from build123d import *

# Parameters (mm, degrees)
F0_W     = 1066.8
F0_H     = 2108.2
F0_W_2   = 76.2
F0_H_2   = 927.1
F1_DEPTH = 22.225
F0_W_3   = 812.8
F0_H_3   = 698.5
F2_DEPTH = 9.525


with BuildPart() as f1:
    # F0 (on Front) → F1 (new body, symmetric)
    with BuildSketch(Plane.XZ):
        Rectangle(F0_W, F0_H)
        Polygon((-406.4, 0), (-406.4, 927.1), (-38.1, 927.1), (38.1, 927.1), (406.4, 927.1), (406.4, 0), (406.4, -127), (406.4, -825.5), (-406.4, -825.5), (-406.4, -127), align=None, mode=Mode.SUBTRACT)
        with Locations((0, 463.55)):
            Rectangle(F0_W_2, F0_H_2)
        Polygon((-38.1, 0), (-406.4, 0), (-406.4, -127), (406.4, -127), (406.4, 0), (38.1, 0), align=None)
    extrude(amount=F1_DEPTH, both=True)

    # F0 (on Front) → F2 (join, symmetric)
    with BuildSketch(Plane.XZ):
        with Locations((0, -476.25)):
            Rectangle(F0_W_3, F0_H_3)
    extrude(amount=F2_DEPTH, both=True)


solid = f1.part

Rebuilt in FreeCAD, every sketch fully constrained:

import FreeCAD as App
import Part
import Sketcher

V = App.Vector
Q = App.Units.Quantity

doc = App.newDocument("Part")
params = doc.addObject("Spreadsheet::Sheet", "Params")
for row, (alias, value) in enumerate([
    ("sketch1_width", "42 in"),
    ("sketch1_width2", "32 in"),
    ("sketch1_height", "83 in"),
    ("sketch1_width3", "14.5 in"),
    ("sketch1_height2", "27.5 in"),
    ("pad1_length", "1.75 in"),
    ("sketch2_width", "32 in"),
    ("sketch2_height", "27.5 in"),
    ("pad2_length", "0.75 in"),
], start=1):
    params.set(f"A{row}", alias)
    params.set(f"B{row}", "=" + value)
    params.setAlias(f"B{row}", alias)

body = doc.addObject("PartDesign::Body", "Body")

sketch1 = body.newObject("Sketcher::SketchObject", "Sketch")
sketch1.AttachmentSupport = (doc.getObject("XZ_Plane"), [""])
sketch1.MapMode = "FlatFace"
sketch1.addGeometry([
    Part.LineSegment(V(-533, 1054, 0), V(-533, -1054, 0)),
    Part.LineSegment(V(-533, -1054, 0), V(533, -1054, 0)),
    Part.LineSegment(V(533, -1054, 0), V(533, 1054, 0)),
    Part.LineSegment(V(533, 1054, 0), V(-533, 1054, 0)),
    Part.LineSegment(V(-406, -826, 0), V(-406, -127, 0)),
    Part.LineSegment(V(-406, -127, 0), V(406, -127, 0)),
    Part.LineSegment(V(406, -127, 0), V(406, -826, 0)),
    Part.LineSegment(V(406, -826, 0), V(-406, -826, 0)),
    Part.LineSegment(V(-406, 0, 0), V(-406, 927, 0)),
    Part.LineSegment(V(-406, 927, 0), V(-38, 927, 0)),
    Part.LineSegment(V(-38, 927, 0), V(-38, 0, 0)),
    Part.LineSegment(V(-38, 0, 0), V(-406, 0, 0)),
    Part.LineSegment(V(38, 0, 0), V(38, 927, 0)),
    Part.LineSegment(V(38, 927, 0), V(406, 927, 0)),
    Part.LineSegment(V(406, 927, 0), V(406, 0, 0)),
    Part.LineSegment(V(406, 0, 0), V(38, 0, 0)),
], False)
sketch1.addConstraint([
    Sketcher.Constraint("Coincident", 0, 2, 1, 1),
    Sketcher.Constraint("Coincident", 1, 2, 2, 1),
    Sketcher.Constraint("Coincident", 2, 2, 3, 1),
    Sketcher.Constraint("Coincident", 3, 2, 0, 1),
    Sketcher.Constraint("Coincident", 4, 2, 5, 1),
    Sketcher.Constraint("Coincident", 5, 2, 6, 1),
    Sketcher.Constraint("Coincident", 6, 2, 7, 1),
    Sketcher.Constraint("Coincident", 7, 2, 4, 1),
    Sketcher.Constraint("Coincident", 8, 2, 9, 1),
    Sketcher.Constraint("Coincident", 9, 2, 10, 1),
    Sketcher.Constraint("Coincident", 10, 2, 11, 1),
    Sketcher.Constraint("Coincident", 11, 2, 8, 1),
    Sketcher.Constraint("Coincident", 12, 2, 13, 1),
    Sketcher.Constraint("Coincident", 13, 2, 14, 1),
    Sketcher.Constraint("Coincident", 14, 2, 15, 1),
    Sketcher.Constraint("Coincident", 15, 2, 12, 1),
    Sketcher.Constraint("Vertical", 0),
    Sketcher.Constraint("Horizontal", 1),
    Sketcher.Constraint("Vertical", 2),
    Sketcher.Constraint("Horizontal", 3),
    Sketcher.Constraint("Vertical", 4),
    Sketcher.Constraint("Horizontal", 5),
    Sketcher.Constraint("Vertical", 6),
    Sketcher.Constraint("Horizontal", 7),
    Sketcher.Constraint("Vertical", 8),
    Sketcher.Constraint("Horizontal", 9),
    Sketcher.Constraint("Vertical", 10),
    Sketcher.Constraint("Horizontal", 11),
    Sketcher.Constraint("Vertical", 12),
    Sketcher.Constraint("Horizontal", 13),
    Sketcher.Constraint("Vertical", 14),
    Sketcher.Constraint("Horizontal", 15),
    Sketcher.Constraint("Symmetric", 0, 2, 2, 2, -1, 1),
    Sketcher.Constraint("Symmetric", 11, 2, 14, 2, -1, 1),
    Sketcher.Constraint("Symmetric", 9, 2, 12, 2, -2),
    Sketcher.Constraint("PointOnObject", 10, 2, -1),
    Sketcher.Constraint("Vertical", 7, 2, 8, 2),
    Sketcher.Constraint("Vertical", 6, 2, 13, 2),
    Sketcher.Constraint("DistanceX", 1, 1, 1, 2, Q("42 in")),
    Sketcher.Constraint("DistanceX", 5, 1, 5, 2, Q("32 in")),
    Sketcher.Constraint("DistanceY", 0, 2, 0, 1, Q("83 in")),
    Sketcher.Constraint("DistanceX", 9, 1, 9, 2, Q("14.5 in")),
    Sketcher.Constraint("DistanceY", 4, 1, 4, 2, Q("27.5 in")),
    Sketcher.Constraint("DistanceY", 8, 1, 8, 2, Q("36.5 in")),
    Sketcher.Constraint("DistanceY", 4, 2, -1, 1, Q("5 in")),
])
sketch1.setExpression("Constraints[38]", "Params.sketch1_width")
sketch1.setExpression("Constraints[39]", "Params.sketch1_width2")
sketch1.setExpression("Constraints[40]", "Params.sketch1_height")
sketch1.setExpression("Constraints[41]", "Params.sketch1_width3")
sketch1.setExpression("Constraints[42]", "Params.sketch1_height2")
pad1 = body.newObject("PartDesign::Pad", "Pad")
pad1.Profile = sketch1
pad1.setExpression("Length", "Params.pad1_length")
pad1.Midplane = True

sketch2 = body.newObject("Sketcher::SketchObject", "Sketch001")
sketch2.AttachmentSupport = (doc.getObject("XZ_Plane"), [""])
sketch2.MapMode = "FlatFace"
sketch2.addGeometry([
    Part.LineSegment(V(-406, -127, 0), V(-406, -826, 0)),
    Part.LineSegment(V(-406, -826, 0), V(406, -826, 0)),
    Part.LineSegment(V(406, -826, 0), V(406, -127, 0)),
    Part.LineSegment(V(406, -127, 0), V(-406, -127, 0)),
], False)
sketch2.addConstraint([
    Sketcher.Constraint("Coincident", 0, 2, 1, 1),
    Sketcher.Constraint("Coincident", 1, 2, 2, 1),
    Sketcher.Constraint("Coincident", 2, 2, 3, 1),
    Sketcher.Constraint("Coincident", 3, 2, 0, 1),
    Sketcher.Constraint("Vertical", 0),
    Sketcher.Constraint("Horizontal", 1),
    Sketcher.Constraint("Vertical", 2),
    Sketcher.Constraint("Horizontal", 3),
    Sketcher.Constraint("DistanceX", 1, 1, 1, 2, Q("32 in")),
    Sketcher.Constraint("DistanceY", 0, 2, 0, 1, Q("27.5 in")),
    Sketcher.Constraint("DistanceX", 0, 2, -1, 1, Q("16 in")),
    Sketcher.Constraint("DistanceY", 2, 2, -1, 1, Q("5 in")),
])
sketch2.setExpression("Constraints[8]", "Params.sketch2_width")
sketch2.setExpression("Constraints[9]", "Params.sketch2_height")
pad2 = body.newObject("PartDesign::Pad", "Pad001")
pad2.Profile = sketch2
pad2.setExpression("Length", "Params.pad2_length")
pad2.Midplane = True

doc.recompute()
